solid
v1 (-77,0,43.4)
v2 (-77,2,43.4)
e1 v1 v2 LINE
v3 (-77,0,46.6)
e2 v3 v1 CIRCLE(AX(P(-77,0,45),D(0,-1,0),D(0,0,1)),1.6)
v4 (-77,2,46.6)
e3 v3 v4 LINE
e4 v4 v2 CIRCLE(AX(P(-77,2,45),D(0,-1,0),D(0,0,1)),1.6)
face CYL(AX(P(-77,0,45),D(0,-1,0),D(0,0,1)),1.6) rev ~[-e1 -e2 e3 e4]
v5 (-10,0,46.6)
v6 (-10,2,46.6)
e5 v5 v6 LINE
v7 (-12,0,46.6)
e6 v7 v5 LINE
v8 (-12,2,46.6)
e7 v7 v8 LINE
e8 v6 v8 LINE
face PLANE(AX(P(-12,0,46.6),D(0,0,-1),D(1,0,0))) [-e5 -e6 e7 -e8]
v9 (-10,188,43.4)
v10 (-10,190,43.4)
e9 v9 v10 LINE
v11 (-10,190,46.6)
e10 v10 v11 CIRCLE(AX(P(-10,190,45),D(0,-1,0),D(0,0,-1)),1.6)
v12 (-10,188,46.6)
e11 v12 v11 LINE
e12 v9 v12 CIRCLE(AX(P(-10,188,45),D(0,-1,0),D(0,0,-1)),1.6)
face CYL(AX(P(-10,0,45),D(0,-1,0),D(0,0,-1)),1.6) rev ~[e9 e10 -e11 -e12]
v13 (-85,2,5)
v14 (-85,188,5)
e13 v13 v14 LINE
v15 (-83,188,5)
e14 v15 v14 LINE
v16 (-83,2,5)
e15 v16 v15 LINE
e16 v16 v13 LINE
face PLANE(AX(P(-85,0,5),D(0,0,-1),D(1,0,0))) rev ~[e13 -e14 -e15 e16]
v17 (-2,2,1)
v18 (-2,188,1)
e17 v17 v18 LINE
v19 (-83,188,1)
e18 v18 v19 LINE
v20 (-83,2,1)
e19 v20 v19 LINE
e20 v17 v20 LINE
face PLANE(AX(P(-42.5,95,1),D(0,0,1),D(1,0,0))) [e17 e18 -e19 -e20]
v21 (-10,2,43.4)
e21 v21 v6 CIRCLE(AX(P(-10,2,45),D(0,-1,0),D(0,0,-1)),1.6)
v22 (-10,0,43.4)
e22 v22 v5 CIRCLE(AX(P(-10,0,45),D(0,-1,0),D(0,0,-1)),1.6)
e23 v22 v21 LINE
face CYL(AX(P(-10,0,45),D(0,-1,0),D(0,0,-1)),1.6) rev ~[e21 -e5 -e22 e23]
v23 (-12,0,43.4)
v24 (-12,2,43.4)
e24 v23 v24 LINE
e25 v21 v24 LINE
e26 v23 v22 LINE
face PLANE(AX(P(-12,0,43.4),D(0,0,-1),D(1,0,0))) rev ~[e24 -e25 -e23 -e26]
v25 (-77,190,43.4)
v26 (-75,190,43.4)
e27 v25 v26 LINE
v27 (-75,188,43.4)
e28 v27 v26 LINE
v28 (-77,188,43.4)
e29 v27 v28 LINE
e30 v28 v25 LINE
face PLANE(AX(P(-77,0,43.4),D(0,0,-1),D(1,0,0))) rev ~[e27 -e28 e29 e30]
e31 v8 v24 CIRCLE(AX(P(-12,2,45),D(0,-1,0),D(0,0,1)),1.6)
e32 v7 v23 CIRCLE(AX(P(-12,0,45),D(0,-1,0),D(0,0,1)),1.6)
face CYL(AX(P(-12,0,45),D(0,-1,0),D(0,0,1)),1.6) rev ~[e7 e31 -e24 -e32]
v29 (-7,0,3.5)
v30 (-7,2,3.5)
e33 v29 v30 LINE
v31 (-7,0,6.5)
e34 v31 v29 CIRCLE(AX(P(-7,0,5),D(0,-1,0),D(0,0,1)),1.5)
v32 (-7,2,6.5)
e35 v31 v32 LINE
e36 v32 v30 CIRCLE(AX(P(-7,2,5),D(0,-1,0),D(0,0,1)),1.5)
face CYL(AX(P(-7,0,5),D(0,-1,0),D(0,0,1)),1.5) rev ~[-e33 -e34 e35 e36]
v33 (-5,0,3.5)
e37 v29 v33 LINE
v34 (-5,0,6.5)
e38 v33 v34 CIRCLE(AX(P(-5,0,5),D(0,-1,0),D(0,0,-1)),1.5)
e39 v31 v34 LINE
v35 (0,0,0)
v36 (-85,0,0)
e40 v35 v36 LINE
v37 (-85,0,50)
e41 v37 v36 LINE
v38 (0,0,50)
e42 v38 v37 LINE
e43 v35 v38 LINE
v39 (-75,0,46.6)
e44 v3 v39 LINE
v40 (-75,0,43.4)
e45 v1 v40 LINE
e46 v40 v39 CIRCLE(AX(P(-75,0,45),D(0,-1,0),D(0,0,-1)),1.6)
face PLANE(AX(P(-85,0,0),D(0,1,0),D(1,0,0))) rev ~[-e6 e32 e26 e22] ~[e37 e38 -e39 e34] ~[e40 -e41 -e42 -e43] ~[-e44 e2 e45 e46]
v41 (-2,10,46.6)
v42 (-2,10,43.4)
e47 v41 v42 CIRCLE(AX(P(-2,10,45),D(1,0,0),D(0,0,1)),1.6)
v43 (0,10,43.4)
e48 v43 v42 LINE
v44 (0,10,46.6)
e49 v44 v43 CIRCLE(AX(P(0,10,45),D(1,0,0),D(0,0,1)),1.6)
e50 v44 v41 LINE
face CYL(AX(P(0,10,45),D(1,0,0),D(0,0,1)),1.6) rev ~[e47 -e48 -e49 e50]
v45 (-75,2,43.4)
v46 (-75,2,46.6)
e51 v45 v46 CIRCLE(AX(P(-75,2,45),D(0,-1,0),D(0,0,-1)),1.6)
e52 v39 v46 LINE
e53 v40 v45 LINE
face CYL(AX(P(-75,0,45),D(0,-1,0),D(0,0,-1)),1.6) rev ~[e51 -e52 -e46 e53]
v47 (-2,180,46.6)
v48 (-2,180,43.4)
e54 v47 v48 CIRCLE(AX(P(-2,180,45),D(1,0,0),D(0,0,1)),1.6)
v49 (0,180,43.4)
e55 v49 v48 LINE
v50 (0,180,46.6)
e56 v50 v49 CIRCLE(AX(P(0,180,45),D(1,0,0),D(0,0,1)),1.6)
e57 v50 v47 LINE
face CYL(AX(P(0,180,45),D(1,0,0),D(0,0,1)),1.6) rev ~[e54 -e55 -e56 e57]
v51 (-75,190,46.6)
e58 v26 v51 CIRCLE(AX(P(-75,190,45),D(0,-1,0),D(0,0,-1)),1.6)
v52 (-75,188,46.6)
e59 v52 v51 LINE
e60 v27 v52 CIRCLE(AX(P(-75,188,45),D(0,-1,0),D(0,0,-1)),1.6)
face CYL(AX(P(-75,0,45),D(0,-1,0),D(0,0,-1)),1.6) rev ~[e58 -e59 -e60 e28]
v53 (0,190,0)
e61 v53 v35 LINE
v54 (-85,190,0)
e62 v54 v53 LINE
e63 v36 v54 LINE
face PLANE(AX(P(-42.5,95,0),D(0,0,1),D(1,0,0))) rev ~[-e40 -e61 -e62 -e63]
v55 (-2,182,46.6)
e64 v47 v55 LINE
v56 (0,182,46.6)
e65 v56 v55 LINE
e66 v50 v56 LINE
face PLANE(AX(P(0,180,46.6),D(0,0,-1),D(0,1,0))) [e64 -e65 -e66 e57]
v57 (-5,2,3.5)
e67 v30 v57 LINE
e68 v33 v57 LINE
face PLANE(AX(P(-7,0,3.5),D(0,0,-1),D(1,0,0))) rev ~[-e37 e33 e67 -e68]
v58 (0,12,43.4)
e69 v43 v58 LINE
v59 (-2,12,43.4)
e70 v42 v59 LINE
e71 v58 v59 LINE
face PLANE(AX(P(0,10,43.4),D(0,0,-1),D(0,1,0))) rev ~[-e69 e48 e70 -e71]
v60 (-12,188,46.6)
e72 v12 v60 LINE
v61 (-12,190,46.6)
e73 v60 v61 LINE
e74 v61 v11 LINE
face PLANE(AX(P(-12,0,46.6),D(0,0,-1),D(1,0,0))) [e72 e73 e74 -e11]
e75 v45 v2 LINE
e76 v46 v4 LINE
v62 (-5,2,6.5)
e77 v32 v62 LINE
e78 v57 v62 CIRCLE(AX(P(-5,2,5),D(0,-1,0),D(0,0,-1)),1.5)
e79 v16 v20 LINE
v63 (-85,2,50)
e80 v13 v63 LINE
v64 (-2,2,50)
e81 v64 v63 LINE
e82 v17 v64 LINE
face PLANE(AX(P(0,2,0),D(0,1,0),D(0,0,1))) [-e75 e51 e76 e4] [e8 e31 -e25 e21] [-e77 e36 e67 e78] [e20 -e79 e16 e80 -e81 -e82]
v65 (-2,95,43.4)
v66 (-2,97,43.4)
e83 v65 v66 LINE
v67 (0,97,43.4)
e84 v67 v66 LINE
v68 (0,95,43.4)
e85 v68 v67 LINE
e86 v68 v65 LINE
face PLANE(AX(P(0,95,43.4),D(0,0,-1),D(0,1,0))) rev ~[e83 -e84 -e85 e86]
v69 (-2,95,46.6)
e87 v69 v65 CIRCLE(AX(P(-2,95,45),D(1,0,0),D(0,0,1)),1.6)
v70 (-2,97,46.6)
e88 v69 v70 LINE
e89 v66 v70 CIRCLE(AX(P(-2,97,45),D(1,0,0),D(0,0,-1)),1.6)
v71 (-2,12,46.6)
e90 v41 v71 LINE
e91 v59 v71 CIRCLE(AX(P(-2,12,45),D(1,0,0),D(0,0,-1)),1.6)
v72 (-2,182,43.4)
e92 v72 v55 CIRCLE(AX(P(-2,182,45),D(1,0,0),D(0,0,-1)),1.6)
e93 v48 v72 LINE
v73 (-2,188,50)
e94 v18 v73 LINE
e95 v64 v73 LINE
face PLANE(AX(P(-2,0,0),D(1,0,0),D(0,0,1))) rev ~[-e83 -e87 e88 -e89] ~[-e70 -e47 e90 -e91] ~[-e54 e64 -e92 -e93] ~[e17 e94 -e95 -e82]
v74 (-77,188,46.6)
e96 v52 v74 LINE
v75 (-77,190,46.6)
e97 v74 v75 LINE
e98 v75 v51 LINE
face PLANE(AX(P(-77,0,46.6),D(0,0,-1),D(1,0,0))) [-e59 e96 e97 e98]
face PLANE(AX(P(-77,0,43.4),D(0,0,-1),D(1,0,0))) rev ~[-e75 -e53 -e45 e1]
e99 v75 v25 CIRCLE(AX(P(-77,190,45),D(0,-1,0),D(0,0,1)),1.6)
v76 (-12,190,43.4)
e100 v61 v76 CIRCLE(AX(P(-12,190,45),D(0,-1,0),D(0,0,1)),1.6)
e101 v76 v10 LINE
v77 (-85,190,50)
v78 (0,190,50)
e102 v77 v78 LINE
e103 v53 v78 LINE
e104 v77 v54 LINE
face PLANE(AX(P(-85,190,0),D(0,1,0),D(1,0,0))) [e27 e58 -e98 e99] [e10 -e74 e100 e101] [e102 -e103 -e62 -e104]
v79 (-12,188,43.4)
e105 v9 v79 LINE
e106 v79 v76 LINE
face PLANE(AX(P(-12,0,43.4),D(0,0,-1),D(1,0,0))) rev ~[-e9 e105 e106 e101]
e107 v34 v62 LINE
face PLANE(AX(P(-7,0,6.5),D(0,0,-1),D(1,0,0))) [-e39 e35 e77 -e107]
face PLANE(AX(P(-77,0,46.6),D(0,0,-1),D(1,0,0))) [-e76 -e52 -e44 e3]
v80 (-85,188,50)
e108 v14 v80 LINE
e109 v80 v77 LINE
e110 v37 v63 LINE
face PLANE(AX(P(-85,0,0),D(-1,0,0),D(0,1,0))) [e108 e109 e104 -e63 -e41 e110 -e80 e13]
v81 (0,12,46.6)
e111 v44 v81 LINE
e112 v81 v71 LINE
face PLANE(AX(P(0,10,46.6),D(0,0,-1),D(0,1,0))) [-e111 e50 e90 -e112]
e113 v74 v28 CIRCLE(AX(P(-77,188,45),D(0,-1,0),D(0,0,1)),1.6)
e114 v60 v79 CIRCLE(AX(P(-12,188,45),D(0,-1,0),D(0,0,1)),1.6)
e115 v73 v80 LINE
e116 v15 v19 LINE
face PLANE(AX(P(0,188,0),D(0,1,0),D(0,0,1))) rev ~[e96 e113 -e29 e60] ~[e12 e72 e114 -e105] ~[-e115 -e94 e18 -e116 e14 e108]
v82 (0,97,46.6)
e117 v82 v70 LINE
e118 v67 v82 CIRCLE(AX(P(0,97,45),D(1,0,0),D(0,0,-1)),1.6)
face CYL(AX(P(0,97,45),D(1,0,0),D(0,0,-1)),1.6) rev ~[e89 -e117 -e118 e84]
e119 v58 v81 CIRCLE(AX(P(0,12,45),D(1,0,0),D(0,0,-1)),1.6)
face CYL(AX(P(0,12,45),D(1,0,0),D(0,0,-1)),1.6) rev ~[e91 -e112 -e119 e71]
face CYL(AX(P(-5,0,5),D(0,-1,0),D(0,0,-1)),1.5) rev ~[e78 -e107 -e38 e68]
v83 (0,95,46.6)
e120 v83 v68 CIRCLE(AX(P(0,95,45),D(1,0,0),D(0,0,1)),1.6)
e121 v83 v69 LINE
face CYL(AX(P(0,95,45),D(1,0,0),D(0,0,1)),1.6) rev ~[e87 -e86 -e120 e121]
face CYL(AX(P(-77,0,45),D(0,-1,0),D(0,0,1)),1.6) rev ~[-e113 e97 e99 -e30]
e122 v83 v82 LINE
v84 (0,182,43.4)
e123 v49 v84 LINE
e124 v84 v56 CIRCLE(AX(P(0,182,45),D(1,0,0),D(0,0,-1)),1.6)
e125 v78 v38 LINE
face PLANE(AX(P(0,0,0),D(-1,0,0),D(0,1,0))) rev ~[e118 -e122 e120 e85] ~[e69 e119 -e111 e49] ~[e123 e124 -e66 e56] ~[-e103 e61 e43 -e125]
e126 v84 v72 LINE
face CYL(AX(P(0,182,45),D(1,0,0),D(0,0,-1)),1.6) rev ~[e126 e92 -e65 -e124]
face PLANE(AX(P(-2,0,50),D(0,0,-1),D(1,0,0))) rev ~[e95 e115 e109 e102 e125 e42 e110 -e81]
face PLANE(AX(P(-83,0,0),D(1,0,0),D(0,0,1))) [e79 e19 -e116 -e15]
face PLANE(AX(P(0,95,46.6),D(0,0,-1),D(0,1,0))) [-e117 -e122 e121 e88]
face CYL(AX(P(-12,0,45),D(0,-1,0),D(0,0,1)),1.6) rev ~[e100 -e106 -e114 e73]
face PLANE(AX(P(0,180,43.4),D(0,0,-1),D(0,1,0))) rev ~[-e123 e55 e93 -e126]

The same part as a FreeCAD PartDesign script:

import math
import FreeCAD as App
import Part
import Sketcher

V = App.Vector

doc = App.newDocument("Part")
params = doc.addObject("Spreadsheet::Sheet", "Params")
for row, (alias, value) in enumerate([
    ("sketch1_width", "85 mm"),
    ("sketch1_height", "190 mm"),
    ("pad1_length", "1 mm"),
    ("sketch2_width", "2 mm"),
    ("sketch2_height", "50 mm"),
    ("pad2_length", "190 mm"),
    ("sketch3_width", "2 mm"),
    ("sketch3_height", "50 mm"),
    ("pad3_length", "85 mm"),
    ("sketch4_width", "2 mm"),
    ("sketch4_height", "50 mm"),
    ("pad4_length", "85 mm"),
    ("sketch5_width", "2 mm"),
    ("sketch5_height", "5 mm"),
    ("pad5_length", "190 mm"),
    ("sketch6_radius", "1.5 mm"),
    ("sketch6_width", "2 mm"),
    ("pocket1_length", "2 mm"),
    ("sketch7_radius", "1.6 mm"),
    ("sketch7_width", "2 mm"),
    ("pocket2_length", "190 mm"),
    ("sketch8_radius", "1.6 mm"),
    ("sketch8_width", "2 mm"),
    ("pocket3_length", "2 mm"),
    ("linearpattern_pitch", "85 mm"),
], start=1):
    params.set(f"A{row}", alias)
    params.set(f"B{row}", "=" + value)
    params.setAlias(f"B{row}", alias)

body = doc.addObject("PartDesign::Body", "Body")

# Sketch on XY plane
sketch1 = body.newObject("Sketcher::SketchObject", "Sketch")
sketch1.AttachmentSupport = (doc.getObject("XY_Plane"), [""])
sketch1.MapMode = "FlatFace"
sketch1.addGeometry(Part.LineSegment(V(-85, 190, 0), V(-85, 0, 0)), False)
sketch1.addGeometry(Part.LineSegment(V(-85, 0, 0), V(0, 0, 0)), False)
sketch1.addGeometry(Part.LineSegment(V(0, 0, 0), V(0, 190, 0)), False)
sketch1.addGeometry(Part.LineSegment(V(0, 190, 0), V(-85, 190, 0)), False)
sketch1.addConstraint(Sketcher.Constraint("Coincident", 0, 2, 1, 1))
sketch1.addConstraint(Sketcher.Constraint("Coincident", 1, 2, 2, 1))
sketch1.addConstraint(Sketcher.Constraint("Coincident", 2, 2, 3, 1))
sketch1.addConstraint(Sketcher.Constraint("Coincident", 3, 2, 0, 1))
sketch1.addConstraint(Sketcher.Constraint("Vertical", 0))
sketch1.addConstraint(Sketcher.Constraint("Horizontal", 1))
sketch1.addConstraint(Sketcher.Constraint("Vertical", 2))
sketch1.addConstraint(Sketcher.Constraint("Horizontal", 3))
sketch1.addConstraint(Sketcher.Constraint("Coincident", 1, 2, -1, 1))
sketch1.addConstraint(Sketcher.Constraint("DistanceX", 1, 1, 1, 2, 85.0))
sketch1.addConstraint(Sketcher.Constraint("DistanceY", 0, 2, 0, 1, 190.0))
sketch1.setExpression("Constraints[9]", "Params.sketch1_width")
sketch1.setExpression("Constraints[10]", "Params.sketch1_height")
pad1 = body.newObject("PartDesign::Pad", "Pad")
pad1.Profile = sketch1
pad1.setExpression("Length", "Params.pad1_length")

# Sketch on XZ plane
sketch2 = body.newObject("Sketcher::SketchObject", "Sketch001")
sketch2.AttachmentSupport = (doc.getObject("XZ_Plane"), [""])
sketch2.MapMode = "FlatFace"
sketch2.addGeometry(Part.LineSegment(V(-2, 50, 0), V(-2, 0, 0)), False)
sketch2.addGeometry(Part.LineSegment(V(-2, 0, 0), V(0, 0, 0)), False)
sketch2.addGeometry(Part.LineSegment(V(0, 0, 0), V(0, 50, 0)), False)
sketch2.addGeometry(Part.LineSegment(V(0, 50, 0), V(-2, 50, 0)), False)
sketch2.addConstraint(Sketcher.Constraint("Coincident", 0, 2, 1, 1))
sketch2.addConstraint(Sketcher.Constraint("Coincident", 1, 2, 2, 1))
sketch2.addConstraint(Sketcher.Constraint("Coincident", 2, 2, 3, 1))
sketch2.addConstraint(Sketcher.Constraint("Coincident", 3, 2, 0, 1))
sketch2.addConstraint(Sketcher.Constraint("Vertical", 0))
sketch2.addConstraint(Sketcher.Constraint("Horizontal", 1))
sketch2.addConstraint(Sketcher.Constraint("Vertical", 2))
sketch2.addConstraint(Sketcher.Constraint("Horizontal", 3))
sketch2.addConstraint(Sketcher.Constraint("Coincident", 1, 2, -1, 1))
sketch2.addConstraint(Sketcher.Constraint("DistanceX", 1, 1, 1, 2, 2.0))
sketch2.addConstraint(Sketcher.Constraint("DistanceY", 0, 2, 0, 1, 50.0))
sketch2.setExpression("Constraints[9]", "Params.sketch2_width")
sketch2.setExpression("Constraints[10]", "Params.sketch2_height")
pad2 = body.newObject("PartDesign::Pad", "Pad001")
pad2.Profile = sketch2
pad2.setExpression("Length", "Params.pad2_length")
pad2.Reversed = True

# Sketch on YZ plane
sketch3 = body.newObject("Sketcher::SketchObject", "Sketch002")
sketch3.AttachmentSupport = (doc.getObject("YZ_Plane"), [""])
sketch3.MapMode = "FlatFace"
sketch3.addGeometry(Part.LineSegment(V(0, 50, 0), V(0, 0, 0)), False)
sketch3.addGeometry(Part.LineSegment(V(0, 0, 0), V(2, 0, 0)), False)
sketch3.addGeometry(Part.LineSegment(V(2, 0, 0), V(2, 50, 0)), False)
sketch3.addGeometry(Part.LineSegment(V(2, 50, 0), V(0, 50, 0)), False)
sketch3.addConstraint(Sketcher.Constraint("Coincident", 0, 2, 1, 1))
sketch3.addConstraint(Sketcher.Constraint("Coincident", 1, 2, 2, 1))
sketch3.addConstraint(Sketcher.Constraint("Coincident", 2, 2, 3, 1))
sketch3.addConstraint(Sketcher.Constraint("Coincident", 3, 2, 0, 1))
sketch3.addConstraint(Sketcher.Constraint("Vertical", 0))
sketch3.addConstraint(Sketcher.Constraint("Horizontal", 1))
sketch3.addConstraint(Sketcher.Constraint("Vertical", 2))
sketch3.addConstraint(Sketcher.Constraint("Horizontal", 3))
sketch3.addConstraint(Sketcher.Constraint("Coincident", 0, 2, -1, 1))
sketch3.addConstraint(Sketcher.Constraint("DistanceX", 1, 1, 1, 2, 2.0))
sketch3.addConstraint(Sketcher.Constraint("DistanceY", 0, 2, 0, 1, 50.0))
sketch3.setExpression("Constraints[9]", "Params.sketch3_width")
sketch3.setExpression("Constraints[10]", "Params.sketch3_height")
pad3 = body.newObject("PartDesign::Pad", "Pad002")
pad3.Profile = sketch3
pad3.setExpression("Length", "Params.pad3_length")
pad3.Reversed = True

# Sketch on YZ plane
sketch4 = body.newObject("Sketcher::SketchObject", "Sketch003")
sketch4.AttachmentSupport = (doc.getObject("YZ_Plane"), [""])
sketch4.MapMode = "FlatFace"
sketch4.addGeometry(Part.LineSegment(V(188, 50, 0), V(188, 0, 0)), False)
sketch4.addGeometry(Part.LineSegment(V(188, 0, 0), V(190, 0, 0)), False)
sketch4.addGeometry(Part.LineSegment(V(190, 0, 0), V(190, 50, 0)), False)
sketch4.addGeometry(Part.LineSegment(V(190, 50, 0), V(188, 50, 0)), False)
sketch4.addConstraint(Sketcher.Constraint("Coincident", 0, 2, 1, 1))
sketch4.addConstraint(Sketcher.Constraint("Coincident", 1, 2, 2, 1))
sketch4.addConstraint(Sketcher.Constraint("Coincident", 2, 2, 3, 1))
sketch4.addConstraint(Sketcher.Constraint("Coincident", 3, 2, 0, 1))
sketch4.addConstraint(Sketcher.Constraint("Vertical", 0))
sketch4.addConstraint(Sketcher.Constraint("Horizontal", 1))
sketch4.addConstraint(Sketcher.Constraint("Vertical", 2))
sketch4.addConstraint(Sketcher.Constraint("Horizontal", 3))
sketch4.addConstraint(Sketcher.Constraint("PointOnObject", 0, 2, -1))
sketch4.addConstraint(Sketcher.Constraint("DistanceX", 1, 1, 1, 2, 2.0))
sketch4.addConstraint(Sketcher.Constraint("DistanceY", 0, 2, 0, 1, 50.0))
sketch4.addConstraint(Sketcher.Constraint("DistanceX", -1, 1, 0, 2, 188.0))
sketch4.setExpression("Constraints[9]", "Params.sketch4_width")
sketch4.setExpression("Constraints[10]", "Params.sketch4_height")
pad4 = body.newObject("PartDesign::Pad", "Pad003")
pad4.Profile = sketch4
pad4.setExpression("Length", "Params.pad4_length")
pad4.Reversed = True

# Sketch on XZ plane
sketch5 = body.newObject("Sketcher::SketchObject", "Sketch004")
sketch5.AttachmentSupport = (doc.getObject("XZ_Plane"), [""])
sketch5.MapMode = "FlatFace"
sketch5.addGeometry(Part.LineSegment(V(-85, 5, 0), V(-85, 0, 0)), False)
sketch5.addGeometry(Part.LineSegment(V(-85, 0, 0), V(-83, 0, 0)), False)
sketch5.addGeometry(Part.LineSegment(V(-83, 0, 0), V(-83, 5, 0)), False)
sketch5.addGeometry(Part.LineSegment(V(-83, 5, 0), V(-85, 5, 0)), False)
sketch5.addConstraint(Sketcher.Constraint("Coincident", 0, 2, 1, 1))
sketch5.addConstraint(Sketcher.Constraint("Coincident", 1, 2, 2, 1))
sketch5.addConstraint(Sketcher.Constraint("Coincident", 2, 2, 3, 1))
sketch5.addConstraint(Sketcher.Constraint("Coincident", 3, 2, 0, 1))
sketch5.addConstraint(Sketcher.Constraint("Vertical", 0))
sketch5.addConstraint(Sketcher.Constraint("Horizontal", 1))
sketch5.addConstraint(Sketcher.Constraint("Vertical", 2))
sketch5.addConstraint(Sketcher.Constraint("Horizontal", 3))
sketch5.addConstraint(Sketcher.Constraint("PointOnObject", 0, 2, -1))
sketch5.addConstraint(Sketcher.Constraint("DistanceX", 1, 1, 1, 2, 2.0))
sketch5.addConstraint(Sketcher.Constraint("DistanceY", 0, 2, 0, 1, 5.0))
sketch5.addConstraint(Sketcher.Constraint("DistanceX", 0, 2, -1, 1, 85.0))
sketch5.setExpression("Constraints[9]", "Params.sketch5_width")
sketch5.setExpression("Constraints[10]", "Params.sketch5_height")
pad5 = body.newObject("PartDesign::Pad", "Pad004")
pad5.Profile = sketch5
pad5.setExpression("Length", "Params.pad5_length")
pad5.Reversed = True

# Sketch on XZ plane
sketch6 = body.newObject("Sketcher::SketchObject", "Sketch005")
sketch6.AttachmentSupport = (doc.getObject("XZ_Plane"), [""])
sketch6.MapMode = "FlatFace"
sketch6.addGeometry(Part.ArcOfCircle(Part.Circle(V(-7, 5, 0), V(0, 0, 1), 1.5), math.radians(90), math.radians(270)), False)
sketch6.addGeometry(Part.LineSegment(V(-7, 3.5, 0), V(-5, 3.5, 0)), False)
sketch6.addGeometry(Part.ArcOfCircle(Part.Circle(V(-5, 5, 0), V(0, 0, 1), 1.5), math.radians(-90), math.radians(90)), False)
sketch6.addGeometry(Part.LineSegment(V(-5, 6.5, 0), V(-7, 6.5, 0)), False)
sketch6.addConstraint(Sketcher.Constraint("Tangent", 0, 2, 1, 1))
sketch6.addConstraint(Sketcher.Constraint("Tangent", 1, 2, 2, 1))
sketch6.addConstraint(Sketcher.Constraint("Tangent", 2, 2, 3, 1))
sketch6.addConstraint(Sketcher.Constraint("Tangent", 3, 2, 0, 1))
sketch6.addConstraint(Sketcher.Constraint("Horizontal", 1))
sketch6.addConstraint(Sketcher.Constraint("Horizontal", 3))
sketch6.addConstraint(Sketcher.Constraint("Radius", 0, 1.5))
sketch6.addConstraint(Sketcher.Constraint("DistanceX", 1, 1, 1, 2, 2.0))
sketch6.addConstraint(Sketcher.Constraint("DistanceX", 0, 3, -1, 1, 7.0))
sketch6.addConstraint(Sketcher.Constraint("DistanceY", -1, 1, 0, 3, 5.0))
sketch6.setExpression("Constraints[6]", "Params.sketch6_radius")
sketch6.setExpression("Constraints[7]", "Params.sketch6_width")
pocket1 = body.newObject("PartDesign::Pocket", "Pocket")
pocket1.Profile = sketch6
pocket1.setExpression("Length", "Params.pocket1_length")

# Sketch on XZ plane
sketch7 = body.newObject("Sketcher::SketchObject", "Sketch006")
sketch7.AttachmentSupport = (doc.getObject("XZ_Plane"), [""])
sketch7.MapMode = "FlatFace"
sketch7.addGeometry(Part.ArcOfCircle(Part.Circle(V(-12, 45, 0), V(0, 0, 1), 1.6), math.radians(90), math.radians(270)), False)
sketch7.addGeometry(Part.LineSegment(V(-12, 43.4, 0), V(-10, 43.4, 0)), False)
sketch7.addGeometry(Part.ArcOfCircle(Part.Circle(V(-10, 45, 0), V(0, 0, 1), 1.6), math.radians(-90), math.radians(90)), False)
sketch7.addGeometry(Part.LineSegment(V(-10, 46.6, 0), V(-12, 46.6, 0)), False)
sketch7.addGeometry(Part.ArcOfCircle(Part.Circle(V(-77, 45, 0), V(0, 0, 1), 1.6), math.radians(90), math.radians(270)), False)
sketch7.addGeometry(Part.LineSegment(V(-77, 43.4, 0), V(-75, 43.4, 0)), False)
sketch7.addGeometry(Part.ArcOfCircle(Part.Circle(V(-75, 45, 0), V(0, 0, 1), 1.6), math.radians(-90), math.radians(90)), False)
sketch7.addGeometry(Part.LineSegment(V(-75, 46.6, 0), V(-77, 46.6, 0)), False)
sketch7.addConstraint(Sketcher.Constraint("Tangent", 0, 2, 1, 1))
sketch7.addConstraint(Sketcher.Constraint("Tangent", 1, 2, 2, 1))
sketch7.addConstraint(Sketcher.Constraint("Tangent", 2, 2, 3, 1))
sketch7.addConstraint(Sketcher.Constraint("Tangent", 3, 2, 0, 1))
sketch7.addConstraint(Sketcher.Constraint("Tangent", 4, 2, 5, 1))
sketch7.addConstraint(Sketcher.Constraint("Tangent", 5, 2, 6, 1))
sketch7.addConstraint(Sketcher.Constraint("Tangent", 6, 2, 7, 1))
sketch7.addConstraint(Sketcher.Constraint("Tangent", 7, 2, 4, 1))
sketch7.addConstraint(Sketcher.Constraint("Horizontal", 1))
sketch7.addConstraint(Sketcher.Constraint("Horizontal", 3))
sketch7.addConstraint(Sketcher.Constraint("Horizontal", 5))
sketch7.addConstraint(Sketcher.Constraint("Horizontal", 7))
sketch7.addConstraint(Sketcher.Constraint("Equal", 2, 4))
sketch7.addConstraint(Sketcher.Constraint("Horizontal", 2, 3, 4, 3))
sketch7.addConstraint(Sketcher.Constraint("Equal", 3, 5))
sketch7.addConstraint(Sketcher.Constraint("Radius", 0, 1.6))
sketch7.addConstraint(Sketcher.Constraint("DistanceX", 1, 1, 1, 2, 2.0))
sketch7.addConstraint(Sketcher.Constraint("DistanceX", 0, 3, -1, 1, 12.0))
sketch7.addConstraint(Sketcher.Constraint("DistanceY", -1, 1, 0, 3, 45.0))
sketch7.addConstraint(Sketcher.Constraint("DistanceX", 4, 3, -1, 1, 77.0))
sketch7.setExpression("Constraints[15]", "Params.sketch7_radius")
sketch7.setExpression("Constraints[16]", "Params.sketch7_width")
pocket2 = body.newObject("PartDesign::Pocket", "Pocket001")
pocket2.Profile = sketch7
pocket2.setExpression("Length", "Params.pocket2_length")

# Sketch on YZ plane
sketch8 = body.newObject("Sketcher::SketchObject", "Sketch007")
sketch8.AttachmentSupport = (doc.getObject("YZ_Plane"), [""])
sketch8.MapMode = "FlatFace"
sketch8.addGeometry(Part.ArcOfCircle(Part.Circle(V(10, 45, 0), V(0, 0, 1), 1.6), math.radians(90), math.radians(270)), False)
sketch8.addGeometry(Part.LineSegment(V(10, 43.4, 0), V(12, 43.4, 0)), False)
sketch8.addGeometry(Part.ArcOfCircle(Part.Circle(V(12, 45, 0), V(0, 0, 1), 1.6), math.radians(-90), math.radians(90)), False)
sketch8.addGeometry(Part.LineSegment(V(12, 46.6, 0), V(10, 46.6, 0)), False)
sketch8.addConstraint(Sketcher.Constraint("Tangent", 0, 2, 1, 1))
sketch8.addConstraint(Sketcher.Constraint("Tangent", 1, 2, 2, 1))
sketch8.addConstraint(Sketcher.Constraint("Tangent", 2, 2, 3, 1))
sketch8.addConstraint(Sketcher.Constraint("Tangent", 3, 2, 0, 1))
sketch8.addConstraint(Sketcher.Constraint("Horizontal", 1))
sketch8.addConstraint(Sketcher.Constraint("Horizontal", 3))
sketch8.addConstraint(Sketcher.Constraint("Radius", 0, 1.6))
sketch8.addConstraint(Sketcher.Constraint("DistanceX", 1, 1, 1, 2, 2.0))
sketch8.addConstraint(Sketcher.Constraint("DistanceX", -1, 1, 0, 3, 10.0))
sketch8.addConstraint(Sketcher.Constraint("DistanceY", -1, 1, 0, 3, 45.0))
sketch8.setExpression("Constraints[6]", "Params.sketch8_radius")
sketch8.setExpression("Constraints[7]", "Params.sketch8_width")
pocket3 = body.newObject("PartDesign::Pocket", "Pocket002")
pocket3.Profile = sketch8
pocket3.setExpression("Length", "Params.pocket3_length")
doc.recompute()

linearpattern = body.newObject("PartDesign::LinearPattern", "LinearPattern")
linearpattern.Originals = [pocket3]
linearpattern.Direction = (doc.getObject("Y_Axis"), [""])
linearpattern.Mode = "offset"
linearpattern.setExpression("Offset", "Params.linearpattern_pitch")
linearpattern.Occurrences = 3
body.Tip = linearpattern

doc.recompute()
